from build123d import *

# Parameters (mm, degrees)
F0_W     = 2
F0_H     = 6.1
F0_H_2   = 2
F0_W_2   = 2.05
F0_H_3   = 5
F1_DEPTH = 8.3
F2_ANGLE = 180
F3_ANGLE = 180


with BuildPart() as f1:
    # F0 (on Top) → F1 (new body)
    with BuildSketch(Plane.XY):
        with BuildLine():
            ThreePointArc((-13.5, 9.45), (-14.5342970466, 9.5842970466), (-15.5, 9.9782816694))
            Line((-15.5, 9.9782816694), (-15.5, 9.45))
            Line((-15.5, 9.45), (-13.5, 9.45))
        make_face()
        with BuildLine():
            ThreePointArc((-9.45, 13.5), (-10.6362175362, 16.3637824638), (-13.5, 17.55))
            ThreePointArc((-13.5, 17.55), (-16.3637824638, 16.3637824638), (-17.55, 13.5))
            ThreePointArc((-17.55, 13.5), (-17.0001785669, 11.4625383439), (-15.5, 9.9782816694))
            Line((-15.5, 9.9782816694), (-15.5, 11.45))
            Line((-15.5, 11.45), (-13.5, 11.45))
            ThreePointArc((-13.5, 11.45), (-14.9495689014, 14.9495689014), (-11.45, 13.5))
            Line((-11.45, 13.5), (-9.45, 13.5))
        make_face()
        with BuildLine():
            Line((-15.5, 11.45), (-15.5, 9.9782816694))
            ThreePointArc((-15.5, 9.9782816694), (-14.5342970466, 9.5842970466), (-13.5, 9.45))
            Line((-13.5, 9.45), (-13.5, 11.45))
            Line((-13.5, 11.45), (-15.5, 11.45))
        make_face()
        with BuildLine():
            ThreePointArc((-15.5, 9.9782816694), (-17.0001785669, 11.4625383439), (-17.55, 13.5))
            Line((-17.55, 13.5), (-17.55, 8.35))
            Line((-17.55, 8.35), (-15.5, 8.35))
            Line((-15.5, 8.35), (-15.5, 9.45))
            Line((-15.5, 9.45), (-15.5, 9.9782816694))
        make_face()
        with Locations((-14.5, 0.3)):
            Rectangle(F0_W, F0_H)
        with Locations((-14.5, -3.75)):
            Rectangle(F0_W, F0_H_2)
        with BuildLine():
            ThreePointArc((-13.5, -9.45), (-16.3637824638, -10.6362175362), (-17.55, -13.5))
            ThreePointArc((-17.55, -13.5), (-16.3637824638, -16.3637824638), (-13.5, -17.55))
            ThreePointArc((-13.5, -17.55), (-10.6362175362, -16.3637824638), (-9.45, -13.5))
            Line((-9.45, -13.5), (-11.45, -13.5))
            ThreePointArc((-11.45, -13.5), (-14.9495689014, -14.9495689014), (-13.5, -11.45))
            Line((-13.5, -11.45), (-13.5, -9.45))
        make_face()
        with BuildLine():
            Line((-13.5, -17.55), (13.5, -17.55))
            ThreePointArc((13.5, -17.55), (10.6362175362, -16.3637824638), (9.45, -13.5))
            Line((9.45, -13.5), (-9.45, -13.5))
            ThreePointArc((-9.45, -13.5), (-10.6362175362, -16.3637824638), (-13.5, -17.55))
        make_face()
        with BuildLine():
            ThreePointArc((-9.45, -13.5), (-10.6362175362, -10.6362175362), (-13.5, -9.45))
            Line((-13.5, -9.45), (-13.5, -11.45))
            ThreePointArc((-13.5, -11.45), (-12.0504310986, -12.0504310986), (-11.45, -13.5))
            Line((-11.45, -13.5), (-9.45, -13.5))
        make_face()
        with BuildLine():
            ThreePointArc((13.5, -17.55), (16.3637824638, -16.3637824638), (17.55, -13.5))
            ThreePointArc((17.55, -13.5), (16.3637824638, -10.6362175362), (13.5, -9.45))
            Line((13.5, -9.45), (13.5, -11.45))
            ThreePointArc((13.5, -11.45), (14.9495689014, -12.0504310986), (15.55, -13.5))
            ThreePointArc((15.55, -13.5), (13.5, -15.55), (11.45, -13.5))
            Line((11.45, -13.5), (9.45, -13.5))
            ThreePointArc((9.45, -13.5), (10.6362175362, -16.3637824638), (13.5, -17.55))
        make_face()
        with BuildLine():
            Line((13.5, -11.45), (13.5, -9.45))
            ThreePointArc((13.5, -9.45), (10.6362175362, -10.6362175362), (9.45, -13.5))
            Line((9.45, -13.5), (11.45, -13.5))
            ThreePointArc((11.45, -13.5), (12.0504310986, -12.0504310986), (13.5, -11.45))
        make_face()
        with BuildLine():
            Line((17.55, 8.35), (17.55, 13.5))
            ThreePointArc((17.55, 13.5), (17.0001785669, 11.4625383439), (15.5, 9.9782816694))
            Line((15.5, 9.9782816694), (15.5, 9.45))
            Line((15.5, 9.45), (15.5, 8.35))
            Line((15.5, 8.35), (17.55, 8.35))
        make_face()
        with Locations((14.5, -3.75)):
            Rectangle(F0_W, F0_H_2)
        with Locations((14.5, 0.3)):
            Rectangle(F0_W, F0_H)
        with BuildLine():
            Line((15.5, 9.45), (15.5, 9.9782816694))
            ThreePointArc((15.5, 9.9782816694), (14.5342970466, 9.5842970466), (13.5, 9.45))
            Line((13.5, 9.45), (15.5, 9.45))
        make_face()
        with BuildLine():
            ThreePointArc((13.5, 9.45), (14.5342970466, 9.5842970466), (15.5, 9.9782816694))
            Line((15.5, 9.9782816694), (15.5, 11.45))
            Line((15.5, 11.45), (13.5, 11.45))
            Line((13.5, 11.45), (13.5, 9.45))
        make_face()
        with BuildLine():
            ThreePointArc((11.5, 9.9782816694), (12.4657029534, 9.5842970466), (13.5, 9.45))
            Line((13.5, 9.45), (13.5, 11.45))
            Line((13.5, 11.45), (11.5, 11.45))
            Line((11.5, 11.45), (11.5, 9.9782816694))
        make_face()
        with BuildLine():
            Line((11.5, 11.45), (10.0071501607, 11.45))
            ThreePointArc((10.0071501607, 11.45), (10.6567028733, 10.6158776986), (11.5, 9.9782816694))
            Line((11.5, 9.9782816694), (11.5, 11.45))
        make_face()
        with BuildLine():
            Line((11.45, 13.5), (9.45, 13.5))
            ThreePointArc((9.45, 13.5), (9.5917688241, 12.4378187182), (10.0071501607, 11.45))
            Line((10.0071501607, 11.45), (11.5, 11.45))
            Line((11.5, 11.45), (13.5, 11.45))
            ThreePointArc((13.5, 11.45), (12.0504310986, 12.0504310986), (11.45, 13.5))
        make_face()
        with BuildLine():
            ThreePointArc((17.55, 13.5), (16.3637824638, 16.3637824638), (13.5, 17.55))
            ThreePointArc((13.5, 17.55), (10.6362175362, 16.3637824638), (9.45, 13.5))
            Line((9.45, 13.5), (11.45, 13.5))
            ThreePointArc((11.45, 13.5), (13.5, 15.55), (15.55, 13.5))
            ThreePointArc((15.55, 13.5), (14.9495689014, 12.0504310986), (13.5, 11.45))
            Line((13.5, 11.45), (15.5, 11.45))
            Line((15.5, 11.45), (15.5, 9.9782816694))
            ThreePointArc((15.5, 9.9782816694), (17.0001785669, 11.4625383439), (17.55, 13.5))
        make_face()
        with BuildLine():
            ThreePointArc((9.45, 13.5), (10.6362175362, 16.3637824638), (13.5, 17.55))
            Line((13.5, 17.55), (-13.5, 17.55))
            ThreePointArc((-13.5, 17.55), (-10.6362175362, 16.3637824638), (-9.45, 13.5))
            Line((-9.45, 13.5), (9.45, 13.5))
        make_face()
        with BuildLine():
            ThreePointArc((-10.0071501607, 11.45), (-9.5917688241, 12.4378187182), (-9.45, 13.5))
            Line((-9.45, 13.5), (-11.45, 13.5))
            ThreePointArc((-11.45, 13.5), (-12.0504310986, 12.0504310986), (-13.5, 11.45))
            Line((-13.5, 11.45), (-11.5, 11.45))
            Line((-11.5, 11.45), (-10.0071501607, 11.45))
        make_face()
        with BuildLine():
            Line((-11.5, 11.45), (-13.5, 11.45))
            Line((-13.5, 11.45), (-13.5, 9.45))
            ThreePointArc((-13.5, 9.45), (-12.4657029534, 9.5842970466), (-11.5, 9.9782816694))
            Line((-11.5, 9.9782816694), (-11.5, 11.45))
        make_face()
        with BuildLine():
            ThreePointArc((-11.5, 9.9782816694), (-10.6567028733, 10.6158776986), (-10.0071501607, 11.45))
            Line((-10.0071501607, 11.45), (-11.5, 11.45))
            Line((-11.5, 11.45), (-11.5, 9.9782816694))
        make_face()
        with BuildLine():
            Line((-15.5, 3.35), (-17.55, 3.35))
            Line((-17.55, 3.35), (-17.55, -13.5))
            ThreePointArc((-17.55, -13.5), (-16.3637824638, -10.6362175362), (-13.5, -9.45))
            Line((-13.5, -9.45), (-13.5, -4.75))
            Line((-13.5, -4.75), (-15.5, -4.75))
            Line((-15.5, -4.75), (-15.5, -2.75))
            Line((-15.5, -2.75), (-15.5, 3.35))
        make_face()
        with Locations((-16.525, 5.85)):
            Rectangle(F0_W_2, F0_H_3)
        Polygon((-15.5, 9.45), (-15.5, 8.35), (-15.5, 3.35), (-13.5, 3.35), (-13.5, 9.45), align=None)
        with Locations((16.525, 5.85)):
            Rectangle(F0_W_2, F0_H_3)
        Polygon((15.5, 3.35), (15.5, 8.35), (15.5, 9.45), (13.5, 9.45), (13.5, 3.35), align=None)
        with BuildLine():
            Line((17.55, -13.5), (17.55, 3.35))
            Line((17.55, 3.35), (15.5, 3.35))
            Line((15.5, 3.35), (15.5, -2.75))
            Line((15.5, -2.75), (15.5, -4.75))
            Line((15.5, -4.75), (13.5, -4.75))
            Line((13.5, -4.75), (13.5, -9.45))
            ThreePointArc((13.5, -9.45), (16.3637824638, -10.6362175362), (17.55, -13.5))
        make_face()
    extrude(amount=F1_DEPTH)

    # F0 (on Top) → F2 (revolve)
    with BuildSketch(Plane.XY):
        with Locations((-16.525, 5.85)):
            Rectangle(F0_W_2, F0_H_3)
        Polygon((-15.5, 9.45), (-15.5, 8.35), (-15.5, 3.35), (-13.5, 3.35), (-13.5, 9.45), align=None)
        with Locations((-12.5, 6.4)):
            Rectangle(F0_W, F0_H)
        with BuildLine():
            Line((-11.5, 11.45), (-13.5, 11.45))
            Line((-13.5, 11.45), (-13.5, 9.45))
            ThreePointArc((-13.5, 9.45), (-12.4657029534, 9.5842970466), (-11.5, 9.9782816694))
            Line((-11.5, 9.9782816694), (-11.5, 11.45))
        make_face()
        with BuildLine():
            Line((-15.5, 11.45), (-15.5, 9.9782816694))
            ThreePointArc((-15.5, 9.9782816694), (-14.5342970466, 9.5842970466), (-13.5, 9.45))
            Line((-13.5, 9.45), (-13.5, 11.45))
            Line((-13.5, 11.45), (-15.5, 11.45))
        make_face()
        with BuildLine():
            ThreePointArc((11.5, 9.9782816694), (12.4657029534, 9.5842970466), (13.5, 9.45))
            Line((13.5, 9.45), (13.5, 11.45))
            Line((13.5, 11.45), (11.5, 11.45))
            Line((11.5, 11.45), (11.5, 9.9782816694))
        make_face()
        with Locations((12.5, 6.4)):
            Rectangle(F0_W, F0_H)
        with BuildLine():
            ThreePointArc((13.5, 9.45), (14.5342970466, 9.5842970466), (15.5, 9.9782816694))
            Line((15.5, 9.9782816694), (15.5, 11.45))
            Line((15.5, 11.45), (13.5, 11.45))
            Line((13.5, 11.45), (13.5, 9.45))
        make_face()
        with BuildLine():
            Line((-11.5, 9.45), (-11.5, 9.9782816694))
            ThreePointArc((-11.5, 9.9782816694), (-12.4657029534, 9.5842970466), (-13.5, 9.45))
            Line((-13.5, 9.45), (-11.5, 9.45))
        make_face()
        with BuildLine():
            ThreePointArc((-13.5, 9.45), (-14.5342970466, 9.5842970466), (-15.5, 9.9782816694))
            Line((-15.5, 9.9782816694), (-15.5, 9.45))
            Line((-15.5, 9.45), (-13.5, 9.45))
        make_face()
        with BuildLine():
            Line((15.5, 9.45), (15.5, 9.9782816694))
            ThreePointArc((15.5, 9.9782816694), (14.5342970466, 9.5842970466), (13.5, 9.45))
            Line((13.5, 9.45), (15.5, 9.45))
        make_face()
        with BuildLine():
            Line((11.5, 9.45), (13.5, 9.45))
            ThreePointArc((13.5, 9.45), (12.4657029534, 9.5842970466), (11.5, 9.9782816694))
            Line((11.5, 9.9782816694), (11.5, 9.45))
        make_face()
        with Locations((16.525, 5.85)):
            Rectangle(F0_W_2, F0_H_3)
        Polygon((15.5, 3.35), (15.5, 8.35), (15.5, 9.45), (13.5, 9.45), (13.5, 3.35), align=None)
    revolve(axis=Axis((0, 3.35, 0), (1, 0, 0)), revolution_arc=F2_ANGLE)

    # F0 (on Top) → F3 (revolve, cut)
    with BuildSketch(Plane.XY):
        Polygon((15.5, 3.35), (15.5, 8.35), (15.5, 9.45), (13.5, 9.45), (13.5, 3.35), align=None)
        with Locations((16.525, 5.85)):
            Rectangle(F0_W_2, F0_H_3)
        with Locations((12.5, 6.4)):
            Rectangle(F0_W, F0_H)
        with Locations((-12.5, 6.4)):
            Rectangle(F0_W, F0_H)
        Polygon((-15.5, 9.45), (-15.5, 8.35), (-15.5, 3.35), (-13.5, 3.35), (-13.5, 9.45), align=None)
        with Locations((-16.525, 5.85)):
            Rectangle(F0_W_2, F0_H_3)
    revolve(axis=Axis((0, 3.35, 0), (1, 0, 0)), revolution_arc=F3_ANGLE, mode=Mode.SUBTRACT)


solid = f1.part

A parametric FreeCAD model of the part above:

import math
import FreeCAD as App
import Part
import Sketcher

V = App.Vector


def add_polygon(sketch, points):
    """Adds a closed chain of lines whose ends are joined by coincident constraints."""
    first, n = sketch.GeometryCount, len(points)
    for a, b in zip(points, points[1:] + points[:1]):
        sketch.addGeometry(Part.LineSegment(App.Vector(*a, 0), App.Vector(*b, 0)), False)
    for i in range(n):
        sketch.addConstraint(Sketcher.Constraint("Coincident", first + i, 2, first + (i + 1) % n, 1))

doc = App.newDocument("Part")
params = doc.addObject("Spreadsheet::Sheet", "Params")
for row, (alias, value) in enumerate([
    ("sketch1_width", "27 mm"),
    ("sketch1_radius", "4.05 mm"),
    ("sketch1_radius2", "2.05 mm"),
    ("pad1_length", "8.3 mm"),
    ("sketch2_width", "4 mm"),
    ("sketch2_height", "5 mm"),
    ("sketch2_width2", "35.1 mm"),
    ("sketch2_height2", "8.1 mm"),
    ("revolution_angle", "180 deg"),
    ("sketch3_width", "4 mm"),
    ("sketch3_height", "5 mm"),
    ("sketch3_width2", "35.1 mm"),
    ("sketch3_height2", "1.1 mm"),
    ("groove_angle", "180 deg"),
], start=1):
    params.set(f"A{row}", alias)
    params.set(f"B{row}", "=" + value)
    params.setAlias(f"B{row}", alias)

body = doc.addObject("PartDesign::Body", "Body")

# Sketch on XY plane
sketch1 = body.newObject("Sketcher::SketchObject", "Sketch")
sketch1.AttachmentSupport = (doc.getObject("XY_Plane"), [""])
sketch1.MapMode = "FlatFace"
sketch1.addGeometry([
    Part.ArcOfCircle(Part.Circle(V(13.5, 13.5, 0), V(0, 0, 1), 4), math.radians(0), math.radians(90)),  # 0
    Part.LineSegment(V(13.5, 17.6, 0), V(-13.5, 17.6, 0)),  # 1
    Part.ArcOfCircle(Part.Circle(V(-13.5, 13.5, 0), V(0, 0, 1), 4), math.radians(90), math.radians(180)),  # 2
    Part.LineSegment(V(-17.6, 13.5, 0), V(-17.6, -13.5, 0)),  # 3
    Part.ArcOfCircle(Part.Circle(V(-13.5, -13.5, 0), V(0, 0, 1), 4), math.radians(180), math.radians(270)),  # 4
    Part.LineSegment(V(-13.5, -17.6, 0), V(13.5, -17.6, 0)),  # 5
    Part.ArcOfCircle(Part.Circle(V(13.5, -13.5, 0), V(0, 0, 1), 4), math.radians(-90), math.radians(0)),  # 6
    Part.LineSegment(V(17.6, -13.5, 0), V(17.6, 13.5, 0)),  # 7
    Part.ArcOfCircle(Part.Circle(V(-13.5, -13.5, 0), V(0, 0, 1), 2), math.radians(0), math.radians(90)),  # 8
    Part.ArcOfCircle(Part.Circle(V(-13.5, -13.5, 0), V(0, 0, 1), 2), math.radians(90), math.radians(360)),  # 9
    Part.ArcOfCircle(Part.Circle(V(13.5, -13.5, 0), V(0, 0, 1), 2), math.radians(90), math.radians(180)),  # 10
    Part.ArcOfCircle(Part.Circle(V(13.5, -13.5, 0), V(0, 0, 1), 2), math.radians(0), math.radians(90)),  # 11
    Part.ArcOfCircle(Part.Circle(V(13.5, -13.5, 0), V(0, 0, 1), 2), math.radians(180), math.radians(360)),  # 12
    Part.ArcOfCircle(Part.Circle(V(-13.5, 13.5, 0), V(0, 0, 1), 2), math.radians(-90), math.radians(0)),  # 13
    Part.ArcOfCircle(Part.Circle(V(-13.5, 13.5, 0), V(0, 0, 1), 2), math.radians(0), math.radians(270)),  # 14
    Part.ArcOfCircle(Part.Circle(V(13.5, -13.5, 0), V(0, 0, 1), 4), math.radians(90), math.radians(180)),  # 15
    Part.LineSegment(V(9.4, -13.5, 0), V(-9.4, -13.5, 0)),  # 16
    Part.ArcOfCircle(Part.Circle(V(-13.5, -13.5, 0), V(0, 0, 1), 4), math.radians(0), math.radians(90)),  # 17
    Part.LineSegment(V(-13.5, -9.4, 0), V(-13.5, 9.4, 0)),  # 18
    Part.ArcOfCircle(Part.Circle(V(-13.5, 13.5, 0), V(0, 0, 1), 4.1), math.radians(-90), math.radians(-60)),  # 19
    Part.ArcOfCircle(Part.Circle(V(-13.5, 13.5, 0), V(0, 0, 1), 4), math.radians(-60), math.radians(-30)),  # 20
    Part.ArcOfCircle(Part.Circle(V(-13.5, 13.5, 0), V(0, 0, 1), 4.1), math.radians(-30), math.radians(0)),  # 21
    Part.LineSegment(V(-9.4, 13.5, 0), V(9.4, 13.5, 0)),  # 22
    Part.ArcOfCircle(Part.Circle(V(13.5, 13.5, 0), V(0, 0, 1), 4.1), math.radians(180), math.radians(210)),  # 23
    Part.ArcOfCircle(Part.Circle(V(13.5, 13.5, 0), V(0, 0, 1), 4), math.radians(-150), math.radians(-120)),  # 24
    Part.ArcOfCircle(Part.Circle(V(13.5, 13.5, 0), V(0, 0, 1), 4.1), math.radians(-120), math.radians(-90)),  # 25
    Part.LineSegment(V(13.5, 9.4, 0), V(13.5, -9.4, 0)),  # 26
    Part.ArcOfCircle(Part.Circle(V(13.5, 13.5, 0), V(0, 0, 1), 2), math.radians(-90), math.radians(0)),  # 27
    Part.ArcOfCircle(Part.Circle(V(13.5, 13.5, 0), V(0, 0, 1), 2), math.radians(180), math.radians(270)),  # 28
    Part.ArcOfCircle(Part.Circle(V(13.5, 13.5, 0), V(0, 0, 1), 2), math.radians(0), math.radians(180)),  # 29
], False)
sketch1.addConstraint([
    Sketcher.Constraint("Tangent", 0, 2, 1, 1),
    Sketcher.Constraint("Tangent", 1, 2, 2, 1),
    Sketcher.Constraint("Tangent", 2, 2, 3, 1),
    Sketcher.Constraint("Tangent", 3, 2, 4, 1),
    Sketcher.Constraint("Tangent", 4, 2, 5, 1),
    Sketcher.Constraint("Tangent", 5, 2, 6, 1),
    Sketcher.Constraint("Tangent", 6, 2, 7, 1),
    Sketcher.Constraint("Tangent", 7, 2, 0, 1),
    Sketcher.Constraint("Tangent", 8, 1, 9, 2),
    Sketcher.Constraint("Coincident", 9, 1, 8, 2),
    Sketcher.Constraint("Tangent", 10, 1, 11, 2),
    Sketcher.Constraint("Tangent", 11, 1, 12, 2),
    Sketcher.Constraint("Tangent", 12, 1, 10, 2),
    Sketcher.Constraint("Tangent", 13, 1, 14, 2),
    Sketcher.Constraint("Coincident", 14, 1, 13, 2),
    Sketcher.Constraint("Coincident", 15, 2, 16, 1),
    Sketcher.Constraint("Coincident", 16, 2, 17, 1),
    Sketcher.Constraint("Coincident", 17, 2, 18, 1),
    Sketcher.Constraint("Coincident", 18, 2, 19, 1),
    Sketcher.Constraint("Tangent", 19, 2, 20, 1),
    Sketcher.Constraint("Tangent", 20, 2, 21, 1),
    Sketcher.Constraint("Coincident", 21, 2, 22, 1),
    Sketcher.Constraint("Coincident", 22, 2, 23, 1),
    Sketcher.Constraint("Tangent", 23, 2, 24, 1),
    Sketcher.Constraint("Tangent", 24, 2, 25, 1),
    Sketcher.Constraint("Coincident", 25, 2, 26, 1),
    Sketcher.Constraint("Coincident", 26, 2, 15, 1),
    Sketcher.Constraint("Tangent", 27, 1, 28, 2),
    Sketcher.Constraint("Tangent", 28, 1, 29, 2),
    Sketcher.Constraint("Tangent", 29, 1, 27, 2),
    Sketcher.Constraint("Horizontal", 1),
    Sketcher.Constraint("Vertical", 3),
    Sketcher.Constraint("Horizontal", 5),
    Sketcher.Constraint("Vertical", 7),
    Sketcher.Constraint("Horizontal", 16),
    Sketcher.Constraint("Vertical", 18),
    Sketcher.Constraint("Horizontal", 22),
    Sketcher.Constraint("Vertical", 26),
    Sketcher.Constraint("Coincident", 8, 3, 4, 3),
    Sketcher.Constraint("Coincident", 10, 3, 6, 3),
    Sketcher.Constraint("Coincident", 13, 3, 2, 3),
    Sketcher.Constraint("Coincident", 15, 3, 6, 3),
    Sketcher.Constraint("Coincident", 17, 3, 4, 3),
    Sketcher.Constraint("Coincident", 19, 3, 2, 3),
    Sketcher.Constraint("Coincident", 21, 3, 2, 3),
    Sketcher.Constraint("Coincident", 23, 3, 0, 3),
    Sketcher.Constraint("Coincident", 25, 3, 0, 3),
    Sketcher.Constraint("Coincident", 27, 3, 0, 3),
    Sketcher.Constraint("Equal", 0, 2),
    Sketcher.Constraint("Equal", 2, 4),
    Sketcher.Constraint("Equal", 4, 6),
    Sketcher.Constraint("Equal", 9, 10),
    Sketcher.Constraint("Equal", 12, 13),
    Sketcher.Constraint("Equal", 6, 15),
    Sketcher.Constraint("Equal", 15, 17),
    Sketcher.Constraint("Equal", 17, 19),
    Sketcher.Constraint("Equal", 21, 23),
    Sketcher.Constraint("Equal", 14, 27),
    Sketcher.Constraint("Symmetric", 0, 3, 4, 3, -1, 1),
    Sketcher.Constraint("Horizontal", 6, 2, 8, 1),
    Sketcher.Constraint("Horizontal", 8, 1, 11, 1),
    Sketcher.Constraint("Horizontal", 11, 1, 12, 1),
    Sketcher.Constraint("Horizontal", 7, 2, 14, 1),
    Sketcher.Constraint("Horizontal", 12, 1, 15, 2),
    Sketcher.Constraint("Horizontal", 13, 1, 20, 2),
    Sketcher.Constraint("Horizontal", 14, 1, 21, 2),
    Sketcher.Constraint("Horizontal", 20, 2, 23, 2),
    Sketcher.Constraint("Horizontal", 19, 2, 24, 2),
    Sketcher.Constraint("Horizontal", 22, 2, 28, 1),
    Sketcher.Constraint("Horizontal", 28, 1, 29, 1),
    Sketcher.Constraint("Vertical", 4, 2, 9, 1),
    Sketcher.Constraint("Vertical", 5, 2, 10, 1),
    Sketcher.Constraint("Vertical", 9, 1, 13, 1),
    Sketcher.Constraint("Vertical", 13, 1, 17, 2),
    Sketcher.Constraint("Vertical", 10, 1, 25, 2),
    Sketcher.Constraint("Vertical", 26, 2, 27, 1),
    Sketcher.Constraint("Equal", 5, 3),
    Sketcher.Constraint("DistanceX", 1, 2, 1, 1, 27.0),
    Sketcher.Constraint("Radius", 0, 4.05),
    Sketcher.Constraint("Radius", 8, 2.05),
    Sketcher.Constraint("DistanceX", 18, 2, 19, 2, 2.0),
])
sketch1.setExpression("Constraints[77]", "Params.sketch1_width")
sketch1.setExpression("Constraints[78]", "Params.sketch1_radius")
sketch1.setExpression("Constraints[79]", "Params.sketch1_radius2")
pad1 = body.newObject("PartDesign::Pad", "Pad")
pad1.Profile = sketch1
pad1.setExpression("Length", "Params.pad1_length")

# Sketch on XY plane
sketch2 = body.newObject("Sketcher::SketchObject", "Sketch001")
sketch2.AttachmentSupport = (doc.getObject("XY_Plane"), [""])
sketch2.MapMode = "FlatFace"
add_polygon(sketch2, [(-17.6, 8.3), (-17.6, 3.4), (-11.5, 3.4), (-11.5, 11.4), (-15.5, 11.4), (-15.5, 8.3)])  # lines 0-5
add_polygon(sketch2, [(15.5, 11.4), (11.5, 11.4), (11.5, 3.4), (17.6, 3.4), (17.6, 8.3), (15.5, 8.3)])  # lines 6-11
sketch2.addGeometry(Part.LineSegment(V(-17.6, 3.4, 0), V(17.6, 3.4, 0)), True)  # axis
sketch2.addConstraint([
    Sketcher.Constraint("Vertical", 0),
    Sketcher.Constraint("Horizontal", 1),
    Sketcher.Constraint("Vertical", 2),
    Sketcher.Constraint("Horizontal", 3),
    Sketcher.Constraint("Vertical", 4),
    Sketcher.Constraint("Horizontal", 5),
    Sketcher.Constraint("Horizontal", 6),
    Sketcher.Constraint("Vertical", 7),
    Sketcher.Constraint("Horizontal", 8),
    Sketcher.Constraint("Vertical", 9),
    Sketcher.Constraint("Horizontal", 10),
    Sketcher.Constraint("Vertical", 11),
    Sketcher.Constraint("Horizontal", 12),
    Sketcher.Constraint("Coincident", 12, 1, 0, 2),
    Sketcher.Constraint("Coincident", 12, 2, 8, 2),
    Sketcher.Constraint("Symmetric", 2, 2, 6, 2, -2),
    Sketcher.Constraint("Symmetric", 5, 2, 9, 2, -2),
    Sketcher.Constraint("Equal", 3, 6),
    Sketcher.Constraint("DistanceX", 3, 2, 3, 1, 4.0),
    Sketcher.Constraint("DistanceY", 0, 2, 0, 1, 5.0),
    Sketcher.Constraint("DistanceX", 12, 1, 12, 2, 35.1),
    Sketcher.Constraint("DistanceY", 2, 1, 2, 2, 8.1),
    Sketcher.Constraint("DistanceX", 2, 2, 6, 2, 23.0),
    Sketcher.Constraint("DistanceY", -1, 1, 0, 2, 3.35),
])
sketch2.setExpression("Constraints[30]", "Params.sketch2_width")
sketch2.setExpression("Constraints[31]", "Params.sketch2_height")
sketch2.setExpression("Constraints[32]", "Params.sketch2_width2")
sketch2.setExpression("Constraints[33]", "Params.sketch2_height2")
revolution = body.newObject("PartDesign::Revolution", "Revolution")
revolution.Profile = sketch2
revolution.ReferenceAxis = (sketch2, ["Axis0"])
revolution.setExpression("Angle", "Params.revolution_angle")

# Sketch on XY plane
sketch3 = body.newObject("Sketcher::SketchObject", "Sketch002")
sketch3.AttachmentSupport = (doc.getObject("XY_Plane"), [""])
sketch3.MapMode = "FlatFace"
add_polygon(sketch3, [(17.6, 3.4), (17.6, 8.3), (15.5, 8.3), (15.5, 9.4), (11.5, 9.4), (11.5, 3.4)])  # lines 0-5
add_polygon(sketch3, [(-11.5, 3.4), (-11.5, 9.4), (-15.5, 9.4), (-15.5, 8.3), (-17.6, 8.3), (-17.6, 3.4)])  # lines 6-11
sketch3.addGeometry(Part.LineSegment(V(-17.6, 3.4, 0), V(17.6, 3.4, 0)), True)  # axis
sketch3.addConstraint([
    Sketcher.Constraint("Vertical", 0),
    Sketcher.Constraint("Horizontal", 1),
    Sketcher.Constraint("Vertical", 2),
    Sketcher.Constraint("Horizontal", 3),
    Sketcher.Constraint("Vertical", 4),
    Sketcher.Constraint("Horizontal", 5),
    Sketcher.Constraint("Vertical", 6),
    Sketcher.Constraint("Horizontal", 7),
    Sketcher.Constraint("Vertical", 8),
    Sketcher.Constraint("Horizontal", 9),
    Sketcher.Constraint("Vertical", 10),
    Sketcher.Constraint("Horizontal", 11),
    Sketcher.Constraint("Horizontal", 12),
    Sketcher.Constraint("Coincident", 12, 1, 10, 2),
    Sketcher.Constraint("Coincident", 12, 2, 5, 2),
    Sketcher.Constraint("Symmetric", 3, 2, 6, 2, -2),
    Sketcher.Constraint("Symmetric", 1, 2, 8, 2, -2),
    Sketcher.Constraint("Equal", 1, 9),
    Sketcher.Constraint("DistanceX", 3, 2, 3, 1, 4.0),
    Sketcher.Constraint("DistanceY", 0, 1, 0, 2, 5.0),
    Sketcher.Constraint("DistanceX", 12, 1, 12, 2, 35.1),
    Sketcher.Constraint("DistanceY", 2, 1, 2, 2, 1.1),
    Sketcher.Constraint("DistanceX", 6, 2, 3, 2, 23.0),
    Sketcher.Constraint("DistanceY", -1, 1, 0, 2, 8.35),
])
sketch3.setExpression("Constraints[30]", "Params.sketch3_width")
sketch3.setExpression("Constraints[31]", "Params.sketch3_height")
sketch3.setExpression("Constraints[32]", "Params.sketch3_width2")
sketch3.setExpression("Constraints[33]", "Params.sketch3_height2")
groove = body.newObject("PartDesign::Groove", "Groove")
groove.Profile = sketch3
groove.ReferenceAxis = (sketch3, ["Axis0"])
groove.setExpression("Angle", "Params.groove_angle")

doc.recompute()
